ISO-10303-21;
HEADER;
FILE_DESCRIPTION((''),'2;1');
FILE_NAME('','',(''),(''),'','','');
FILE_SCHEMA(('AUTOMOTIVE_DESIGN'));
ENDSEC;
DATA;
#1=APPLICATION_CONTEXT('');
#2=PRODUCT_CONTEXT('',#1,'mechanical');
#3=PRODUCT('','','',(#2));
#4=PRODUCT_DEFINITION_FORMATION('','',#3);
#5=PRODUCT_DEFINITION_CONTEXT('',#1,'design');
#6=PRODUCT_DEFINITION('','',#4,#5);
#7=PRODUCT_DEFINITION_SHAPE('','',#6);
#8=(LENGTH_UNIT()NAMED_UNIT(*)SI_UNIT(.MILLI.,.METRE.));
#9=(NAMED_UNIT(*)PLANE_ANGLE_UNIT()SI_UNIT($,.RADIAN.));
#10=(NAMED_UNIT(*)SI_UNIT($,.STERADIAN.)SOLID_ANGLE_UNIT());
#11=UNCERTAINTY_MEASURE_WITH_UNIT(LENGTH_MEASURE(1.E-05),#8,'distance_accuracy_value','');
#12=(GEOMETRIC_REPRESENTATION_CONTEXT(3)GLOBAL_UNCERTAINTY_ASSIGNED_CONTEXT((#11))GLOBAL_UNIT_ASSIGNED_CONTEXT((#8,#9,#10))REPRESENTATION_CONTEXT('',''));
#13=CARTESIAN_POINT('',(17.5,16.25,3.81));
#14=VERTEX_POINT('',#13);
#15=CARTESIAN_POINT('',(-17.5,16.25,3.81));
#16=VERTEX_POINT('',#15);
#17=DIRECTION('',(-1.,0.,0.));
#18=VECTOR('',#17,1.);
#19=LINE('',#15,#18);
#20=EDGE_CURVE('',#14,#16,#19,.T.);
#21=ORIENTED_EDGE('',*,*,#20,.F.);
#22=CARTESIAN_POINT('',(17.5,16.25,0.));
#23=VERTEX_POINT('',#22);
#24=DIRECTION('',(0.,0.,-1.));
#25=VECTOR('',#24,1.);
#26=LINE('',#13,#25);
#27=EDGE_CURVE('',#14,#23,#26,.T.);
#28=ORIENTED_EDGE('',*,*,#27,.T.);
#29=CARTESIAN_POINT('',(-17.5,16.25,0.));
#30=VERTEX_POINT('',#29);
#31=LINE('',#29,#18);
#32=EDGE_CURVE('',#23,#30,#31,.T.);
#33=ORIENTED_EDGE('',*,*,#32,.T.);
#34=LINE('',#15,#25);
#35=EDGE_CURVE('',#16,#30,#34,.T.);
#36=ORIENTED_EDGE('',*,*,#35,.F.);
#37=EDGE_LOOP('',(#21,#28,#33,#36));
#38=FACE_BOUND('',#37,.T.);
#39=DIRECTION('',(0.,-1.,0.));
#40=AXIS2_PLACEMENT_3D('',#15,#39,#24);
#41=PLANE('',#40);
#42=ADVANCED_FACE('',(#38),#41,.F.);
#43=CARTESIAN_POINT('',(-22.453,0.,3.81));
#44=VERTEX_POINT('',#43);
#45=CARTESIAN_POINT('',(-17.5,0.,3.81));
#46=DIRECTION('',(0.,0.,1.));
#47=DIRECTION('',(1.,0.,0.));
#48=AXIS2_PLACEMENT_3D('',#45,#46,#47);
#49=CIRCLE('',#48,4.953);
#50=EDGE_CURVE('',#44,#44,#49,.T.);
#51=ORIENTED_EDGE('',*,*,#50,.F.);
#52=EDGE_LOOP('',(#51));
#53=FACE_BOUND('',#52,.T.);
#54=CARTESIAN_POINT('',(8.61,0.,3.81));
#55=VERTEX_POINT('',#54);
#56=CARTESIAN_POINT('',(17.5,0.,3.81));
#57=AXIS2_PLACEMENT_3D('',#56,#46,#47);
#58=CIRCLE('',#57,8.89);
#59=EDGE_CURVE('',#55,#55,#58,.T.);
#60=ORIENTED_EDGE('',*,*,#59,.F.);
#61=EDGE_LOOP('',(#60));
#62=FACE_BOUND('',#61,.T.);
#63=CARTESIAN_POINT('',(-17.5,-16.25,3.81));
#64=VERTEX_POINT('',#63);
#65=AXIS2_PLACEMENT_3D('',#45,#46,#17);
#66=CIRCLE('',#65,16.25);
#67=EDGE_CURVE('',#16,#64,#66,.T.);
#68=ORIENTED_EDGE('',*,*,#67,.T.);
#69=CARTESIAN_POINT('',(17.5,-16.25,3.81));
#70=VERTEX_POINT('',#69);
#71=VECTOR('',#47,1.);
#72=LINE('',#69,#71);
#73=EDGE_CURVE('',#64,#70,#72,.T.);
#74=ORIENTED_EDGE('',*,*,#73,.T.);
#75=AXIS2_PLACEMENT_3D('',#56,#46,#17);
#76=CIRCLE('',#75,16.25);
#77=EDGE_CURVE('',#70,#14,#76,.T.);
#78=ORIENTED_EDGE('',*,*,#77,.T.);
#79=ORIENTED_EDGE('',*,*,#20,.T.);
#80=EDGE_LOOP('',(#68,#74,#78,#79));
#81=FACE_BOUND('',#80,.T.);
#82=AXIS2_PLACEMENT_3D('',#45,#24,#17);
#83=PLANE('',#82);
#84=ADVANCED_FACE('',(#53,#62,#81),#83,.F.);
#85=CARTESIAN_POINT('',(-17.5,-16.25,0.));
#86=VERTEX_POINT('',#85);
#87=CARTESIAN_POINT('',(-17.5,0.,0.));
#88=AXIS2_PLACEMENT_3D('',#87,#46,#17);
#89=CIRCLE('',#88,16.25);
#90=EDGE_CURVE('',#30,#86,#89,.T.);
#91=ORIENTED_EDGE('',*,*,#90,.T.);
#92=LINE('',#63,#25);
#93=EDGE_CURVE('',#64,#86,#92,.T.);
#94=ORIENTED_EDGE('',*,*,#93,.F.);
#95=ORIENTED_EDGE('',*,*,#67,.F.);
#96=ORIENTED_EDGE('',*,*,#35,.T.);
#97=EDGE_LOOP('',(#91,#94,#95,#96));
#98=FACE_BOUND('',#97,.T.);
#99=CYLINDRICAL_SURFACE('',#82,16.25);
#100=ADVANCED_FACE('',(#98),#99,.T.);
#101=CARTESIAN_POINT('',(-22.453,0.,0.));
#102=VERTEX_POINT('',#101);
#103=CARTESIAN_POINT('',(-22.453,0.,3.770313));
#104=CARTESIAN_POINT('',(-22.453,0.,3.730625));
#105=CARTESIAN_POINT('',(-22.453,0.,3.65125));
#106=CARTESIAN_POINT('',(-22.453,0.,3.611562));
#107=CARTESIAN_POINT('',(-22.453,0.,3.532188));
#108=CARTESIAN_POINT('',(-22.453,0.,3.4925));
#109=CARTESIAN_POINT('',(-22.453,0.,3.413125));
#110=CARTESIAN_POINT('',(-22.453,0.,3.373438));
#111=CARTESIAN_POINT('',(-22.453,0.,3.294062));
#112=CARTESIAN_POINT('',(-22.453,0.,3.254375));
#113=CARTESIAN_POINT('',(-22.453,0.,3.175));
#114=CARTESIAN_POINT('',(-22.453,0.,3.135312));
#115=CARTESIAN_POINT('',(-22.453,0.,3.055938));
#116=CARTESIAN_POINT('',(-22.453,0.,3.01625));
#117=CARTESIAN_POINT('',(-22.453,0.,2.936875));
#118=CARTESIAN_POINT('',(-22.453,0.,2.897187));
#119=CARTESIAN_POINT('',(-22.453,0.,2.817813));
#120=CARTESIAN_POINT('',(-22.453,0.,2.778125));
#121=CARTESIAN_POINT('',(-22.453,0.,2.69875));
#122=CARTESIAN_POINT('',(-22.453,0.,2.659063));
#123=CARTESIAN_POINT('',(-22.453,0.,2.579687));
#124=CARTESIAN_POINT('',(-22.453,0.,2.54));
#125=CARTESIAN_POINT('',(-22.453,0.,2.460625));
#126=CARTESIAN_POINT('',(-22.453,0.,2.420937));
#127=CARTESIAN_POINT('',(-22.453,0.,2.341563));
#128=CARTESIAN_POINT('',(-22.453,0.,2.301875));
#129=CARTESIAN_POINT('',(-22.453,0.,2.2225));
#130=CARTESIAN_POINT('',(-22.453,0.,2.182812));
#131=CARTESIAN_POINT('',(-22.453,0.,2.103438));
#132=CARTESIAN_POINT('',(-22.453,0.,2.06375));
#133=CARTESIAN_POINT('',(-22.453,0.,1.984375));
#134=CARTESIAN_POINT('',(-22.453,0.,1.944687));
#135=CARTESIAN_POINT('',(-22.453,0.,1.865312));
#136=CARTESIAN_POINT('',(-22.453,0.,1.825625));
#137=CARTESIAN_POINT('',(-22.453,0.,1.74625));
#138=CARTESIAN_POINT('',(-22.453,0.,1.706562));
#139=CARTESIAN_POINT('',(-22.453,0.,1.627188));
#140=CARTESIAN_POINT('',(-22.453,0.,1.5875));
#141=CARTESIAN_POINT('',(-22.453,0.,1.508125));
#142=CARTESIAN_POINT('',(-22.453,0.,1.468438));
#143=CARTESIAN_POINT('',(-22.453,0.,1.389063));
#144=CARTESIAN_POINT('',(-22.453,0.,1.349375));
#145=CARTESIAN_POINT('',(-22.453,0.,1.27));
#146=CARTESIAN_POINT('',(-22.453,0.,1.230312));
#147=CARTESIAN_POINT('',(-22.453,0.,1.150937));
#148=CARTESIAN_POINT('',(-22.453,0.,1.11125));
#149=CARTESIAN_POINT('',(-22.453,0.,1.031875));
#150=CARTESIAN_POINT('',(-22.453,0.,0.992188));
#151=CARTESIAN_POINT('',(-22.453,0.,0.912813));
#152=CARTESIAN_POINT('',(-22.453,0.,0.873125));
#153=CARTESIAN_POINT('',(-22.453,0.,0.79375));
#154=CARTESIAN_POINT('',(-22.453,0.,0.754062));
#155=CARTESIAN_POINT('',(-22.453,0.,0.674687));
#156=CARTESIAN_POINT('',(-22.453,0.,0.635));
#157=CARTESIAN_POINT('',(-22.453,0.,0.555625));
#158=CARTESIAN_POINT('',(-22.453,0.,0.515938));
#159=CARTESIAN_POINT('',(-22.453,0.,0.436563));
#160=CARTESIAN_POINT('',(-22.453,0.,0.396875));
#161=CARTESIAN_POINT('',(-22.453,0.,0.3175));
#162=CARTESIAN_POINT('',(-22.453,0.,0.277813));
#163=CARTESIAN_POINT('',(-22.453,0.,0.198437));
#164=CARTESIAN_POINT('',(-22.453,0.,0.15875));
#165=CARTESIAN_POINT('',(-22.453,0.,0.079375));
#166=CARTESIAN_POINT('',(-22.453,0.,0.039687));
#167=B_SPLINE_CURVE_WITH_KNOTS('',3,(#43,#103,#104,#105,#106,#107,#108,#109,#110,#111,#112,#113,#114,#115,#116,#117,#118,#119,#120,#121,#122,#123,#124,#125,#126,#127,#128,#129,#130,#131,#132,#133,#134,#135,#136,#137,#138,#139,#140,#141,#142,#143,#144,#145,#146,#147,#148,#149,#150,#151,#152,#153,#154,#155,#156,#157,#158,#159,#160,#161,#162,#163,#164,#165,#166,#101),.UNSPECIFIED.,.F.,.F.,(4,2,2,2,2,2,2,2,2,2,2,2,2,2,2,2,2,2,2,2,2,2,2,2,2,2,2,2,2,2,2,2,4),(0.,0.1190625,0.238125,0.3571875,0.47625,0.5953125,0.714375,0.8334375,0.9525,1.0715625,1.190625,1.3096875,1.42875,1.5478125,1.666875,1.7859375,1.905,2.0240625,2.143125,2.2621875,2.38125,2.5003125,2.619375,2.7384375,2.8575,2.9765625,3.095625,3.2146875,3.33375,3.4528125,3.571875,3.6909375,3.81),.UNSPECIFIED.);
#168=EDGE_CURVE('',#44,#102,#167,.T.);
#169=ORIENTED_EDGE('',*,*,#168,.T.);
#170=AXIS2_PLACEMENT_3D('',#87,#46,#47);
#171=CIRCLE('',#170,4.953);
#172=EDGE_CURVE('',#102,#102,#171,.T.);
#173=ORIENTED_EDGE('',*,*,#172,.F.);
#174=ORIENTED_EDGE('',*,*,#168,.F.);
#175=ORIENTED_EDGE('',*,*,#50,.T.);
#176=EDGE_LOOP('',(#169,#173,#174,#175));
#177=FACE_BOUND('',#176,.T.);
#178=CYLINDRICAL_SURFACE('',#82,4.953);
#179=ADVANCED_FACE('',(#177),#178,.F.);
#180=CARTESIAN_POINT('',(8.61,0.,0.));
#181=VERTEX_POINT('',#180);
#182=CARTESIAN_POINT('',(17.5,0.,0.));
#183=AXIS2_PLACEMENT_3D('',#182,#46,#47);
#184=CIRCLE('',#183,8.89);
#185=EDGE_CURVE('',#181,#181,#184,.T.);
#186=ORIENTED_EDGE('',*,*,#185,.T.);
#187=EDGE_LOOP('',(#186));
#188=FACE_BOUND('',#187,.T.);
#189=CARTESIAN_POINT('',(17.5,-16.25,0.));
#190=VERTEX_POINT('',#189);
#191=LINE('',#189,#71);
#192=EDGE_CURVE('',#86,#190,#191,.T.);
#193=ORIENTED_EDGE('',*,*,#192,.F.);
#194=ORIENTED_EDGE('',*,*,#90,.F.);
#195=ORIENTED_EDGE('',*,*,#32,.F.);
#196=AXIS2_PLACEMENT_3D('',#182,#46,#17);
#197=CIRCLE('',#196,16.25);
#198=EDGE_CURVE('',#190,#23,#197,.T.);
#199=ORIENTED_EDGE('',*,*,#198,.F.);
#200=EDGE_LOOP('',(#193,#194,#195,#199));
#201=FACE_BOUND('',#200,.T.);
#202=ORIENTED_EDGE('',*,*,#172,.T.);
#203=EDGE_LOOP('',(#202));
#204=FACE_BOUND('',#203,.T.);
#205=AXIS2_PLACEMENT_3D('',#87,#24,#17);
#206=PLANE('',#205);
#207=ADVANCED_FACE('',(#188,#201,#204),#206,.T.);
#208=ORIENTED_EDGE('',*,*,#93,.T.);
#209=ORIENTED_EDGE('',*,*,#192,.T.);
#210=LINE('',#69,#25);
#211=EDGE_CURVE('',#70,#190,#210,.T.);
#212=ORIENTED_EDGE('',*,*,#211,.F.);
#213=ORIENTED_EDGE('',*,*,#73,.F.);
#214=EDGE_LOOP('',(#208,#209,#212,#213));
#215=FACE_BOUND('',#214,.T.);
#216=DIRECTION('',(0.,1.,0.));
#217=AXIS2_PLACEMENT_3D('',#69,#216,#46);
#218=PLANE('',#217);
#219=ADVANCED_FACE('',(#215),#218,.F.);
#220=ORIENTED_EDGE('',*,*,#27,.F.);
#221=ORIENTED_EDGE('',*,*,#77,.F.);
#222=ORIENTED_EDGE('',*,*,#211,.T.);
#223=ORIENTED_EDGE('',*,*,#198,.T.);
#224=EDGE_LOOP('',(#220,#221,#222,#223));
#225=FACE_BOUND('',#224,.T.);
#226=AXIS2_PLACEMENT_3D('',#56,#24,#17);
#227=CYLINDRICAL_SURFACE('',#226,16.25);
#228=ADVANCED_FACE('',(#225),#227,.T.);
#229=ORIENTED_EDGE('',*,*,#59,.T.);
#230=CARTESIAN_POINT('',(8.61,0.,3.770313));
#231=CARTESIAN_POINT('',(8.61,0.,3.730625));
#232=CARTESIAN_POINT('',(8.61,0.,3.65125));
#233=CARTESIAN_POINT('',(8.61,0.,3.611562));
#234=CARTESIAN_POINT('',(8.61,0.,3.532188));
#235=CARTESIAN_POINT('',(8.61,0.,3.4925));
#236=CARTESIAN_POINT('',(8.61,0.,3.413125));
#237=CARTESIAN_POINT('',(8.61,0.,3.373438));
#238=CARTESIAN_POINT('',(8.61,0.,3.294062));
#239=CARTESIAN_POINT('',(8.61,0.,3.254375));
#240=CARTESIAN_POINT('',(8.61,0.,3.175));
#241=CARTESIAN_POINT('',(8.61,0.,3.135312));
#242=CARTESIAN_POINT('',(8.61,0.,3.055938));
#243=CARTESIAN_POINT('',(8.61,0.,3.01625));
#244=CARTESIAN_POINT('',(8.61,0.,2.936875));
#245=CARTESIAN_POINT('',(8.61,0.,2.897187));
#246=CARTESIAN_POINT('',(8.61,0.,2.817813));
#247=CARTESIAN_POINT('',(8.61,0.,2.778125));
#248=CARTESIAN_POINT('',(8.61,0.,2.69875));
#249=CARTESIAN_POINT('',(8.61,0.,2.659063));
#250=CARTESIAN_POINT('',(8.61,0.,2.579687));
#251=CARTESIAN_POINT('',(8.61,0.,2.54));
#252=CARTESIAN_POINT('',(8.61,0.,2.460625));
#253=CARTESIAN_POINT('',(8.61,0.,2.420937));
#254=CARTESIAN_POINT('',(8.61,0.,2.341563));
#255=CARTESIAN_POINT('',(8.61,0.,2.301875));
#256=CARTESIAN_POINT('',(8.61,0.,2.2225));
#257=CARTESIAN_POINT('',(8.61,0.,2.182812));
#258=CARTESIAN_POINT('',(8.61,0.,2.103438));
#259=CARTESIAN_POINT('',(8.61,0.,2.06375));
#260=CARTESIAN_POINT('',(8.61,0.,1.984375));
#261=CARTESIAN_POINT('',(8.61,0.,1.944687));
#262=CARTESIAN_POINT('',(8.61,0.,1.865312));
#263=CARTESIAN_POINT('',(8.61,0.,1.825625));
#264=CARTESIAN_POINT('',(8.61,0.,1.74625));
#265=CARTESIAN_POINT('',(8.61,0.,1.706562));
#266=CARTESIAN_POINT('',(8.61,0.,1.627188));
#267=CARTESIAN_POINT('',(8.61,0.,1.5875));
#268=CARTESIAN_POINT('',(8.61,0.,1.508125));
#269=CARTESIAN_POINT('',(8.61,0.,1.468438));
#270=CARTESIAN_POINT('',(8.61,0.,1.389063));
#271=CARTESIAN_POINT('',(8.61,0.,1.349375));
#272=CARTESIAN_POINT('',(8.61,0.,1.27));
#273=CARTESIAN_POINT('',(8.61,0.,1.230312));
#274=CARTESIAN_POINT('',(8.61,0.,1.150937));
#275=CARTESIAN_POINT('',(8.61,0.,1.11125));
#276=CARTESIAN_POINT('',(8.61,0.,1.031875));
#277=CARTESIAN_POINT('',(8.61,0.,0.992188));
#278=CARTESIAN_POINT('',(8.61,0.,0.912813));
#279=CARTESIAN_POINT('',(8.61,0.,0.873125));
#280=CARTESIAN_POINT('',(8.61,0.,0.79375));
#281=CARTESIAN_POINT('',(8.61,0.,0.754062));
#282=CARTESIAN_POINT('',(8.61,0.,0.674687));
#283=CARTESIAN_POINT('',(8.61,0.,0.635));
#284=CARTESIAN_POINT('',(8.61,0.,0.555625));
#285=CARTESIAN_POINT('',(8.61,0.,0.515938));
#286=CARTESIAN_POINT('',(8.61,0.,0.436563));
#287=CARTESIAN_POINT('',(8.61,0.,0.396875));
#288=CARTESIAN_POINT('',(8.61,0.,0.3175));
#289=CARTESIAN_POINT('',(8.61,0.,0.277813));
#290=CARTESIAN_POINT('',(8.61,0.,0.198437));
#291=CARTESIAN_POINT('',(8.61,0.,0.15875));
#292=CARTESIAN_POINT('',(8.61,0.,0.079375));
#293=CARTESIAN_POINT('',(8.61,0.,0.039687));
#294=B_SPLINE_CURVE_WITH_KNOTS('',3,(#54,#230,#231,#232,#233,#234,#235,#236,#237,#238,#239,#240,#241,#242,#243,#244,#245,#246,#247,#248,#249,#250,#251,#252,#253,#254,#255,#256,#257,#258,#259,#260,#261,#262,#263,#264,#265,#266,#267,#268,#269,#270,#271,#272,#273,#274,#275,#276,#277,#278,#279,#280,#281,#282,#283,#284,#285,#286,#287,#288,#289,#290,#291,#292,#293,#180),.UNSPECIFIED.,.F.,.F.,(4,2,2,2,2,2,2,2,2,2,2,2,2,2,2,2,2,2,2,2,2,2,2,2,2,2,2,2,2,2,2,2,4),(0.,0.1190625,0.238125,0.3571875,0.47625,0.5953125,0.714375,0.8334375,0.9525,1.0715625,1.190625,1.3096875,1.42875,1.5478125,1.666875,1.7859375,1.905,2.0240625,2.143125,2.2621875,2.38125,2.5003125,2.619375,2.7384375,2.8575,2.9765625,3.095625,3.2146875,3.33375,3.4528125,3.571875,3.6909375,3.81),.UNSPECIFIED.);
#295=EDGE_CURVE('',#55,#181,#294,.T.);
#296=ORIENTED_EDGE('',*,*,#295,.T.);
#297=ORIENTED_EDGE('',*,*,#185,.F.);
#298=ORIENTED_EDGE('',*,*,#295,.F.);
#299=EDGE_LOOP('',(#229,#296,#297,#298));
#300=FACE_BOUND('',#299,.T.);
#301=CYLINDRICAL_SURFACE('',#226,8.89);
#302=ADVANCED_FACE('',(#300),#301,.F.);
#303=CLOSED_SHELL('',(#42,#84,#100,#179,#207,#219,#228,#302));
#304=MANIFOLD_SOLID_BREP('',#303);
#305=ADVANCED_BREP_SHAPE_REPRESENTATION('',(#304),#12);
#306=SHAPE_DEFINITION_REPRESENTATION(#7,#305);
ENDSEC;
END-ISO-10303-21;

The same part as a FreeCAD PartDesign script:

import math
import FreeCAD as App
import Part
import Sketcher
Q = App.Units.Quantity

doc = App.newDocument("Part")
body = doc.addObject("PartDesign::Body", "Body")

sketch1 = body.newObject("Sketcher::SketchObject", "Sketch")
sketch1.AttachmentSupport = (doc.getObject("XY_Plane"), [""])
sketch1.MapMode = "FlatFace"
sketch1.addGeometry([
    Part.LineSegment(App.Vector(17.5, 16.3, 0), App.Vector(-17.5, 16.3, 0)),
    Part.ArcOfCircle(Part.Circle(App.Vector(-17.5, 0, 0), App.Vector(0, 0, 1), 16.3), math.radians(90), math.radians(270)),
    Part.LineSegment(App.Vector(-17.5, -16.3, 0), App.Vector(17.5, -16.3, 0)),
    Part.ArcOfCircle(Part.Circle(App.Vector(17.5, 0, 0), App.Vector(0, 0, 1), 16.3), math.radians(-90), math.radians(90)),
    Part.Circle(App.Vector(17.5, 0, 0), App.Vector(0, 0, 1), 8.9),
    Part.Circle(App.Vector(-17.5, 0, 0), App.Vector(0, 0, 1), 5),
], False)
sketch1.addConstraint([
    Sketcher.Constraint("Tangent", 0, 2, 1, 1),
    Sketcher.Constraint("Tangent", 1, 2, 2, 1),
    Sketcher.Constraint("Tangent", 2, 2, 3, 1),
    Sketcher.Constraint("Tangent", 3, 2, 0, 1),
    Sketcher.Constraint("Horizontal", 0),
    Sketcher.Constraint("Horizontal", 2),
    Sketcher.Constraint("Coincident", 4, 3, 3, 3),
    Sketcher.Constraint("Coincident", 5, 3, 1, 3),
    Sketcher.Constraint("Symmetric", 1, 3, 3, 3, -1, 1),
    Sketcher.Constraint("Diameter", 4, Q("0.7 in")),
    Sketcher.Constraint("Diameter", 5, Q("0.39 in")),
    Sketcher.Constraint("Radius", 1, Q("16.25 mm")),
    Sketcher.Constraint("DistanceX", 0, 2, 0, 1, Q("35 mm")),
])
pad1 = body.newObject("PartDesign::Pad", "Pad")
pad1.Profile = sketch1
pad1.Length = Q("0.15 in")

doc.recompute()
